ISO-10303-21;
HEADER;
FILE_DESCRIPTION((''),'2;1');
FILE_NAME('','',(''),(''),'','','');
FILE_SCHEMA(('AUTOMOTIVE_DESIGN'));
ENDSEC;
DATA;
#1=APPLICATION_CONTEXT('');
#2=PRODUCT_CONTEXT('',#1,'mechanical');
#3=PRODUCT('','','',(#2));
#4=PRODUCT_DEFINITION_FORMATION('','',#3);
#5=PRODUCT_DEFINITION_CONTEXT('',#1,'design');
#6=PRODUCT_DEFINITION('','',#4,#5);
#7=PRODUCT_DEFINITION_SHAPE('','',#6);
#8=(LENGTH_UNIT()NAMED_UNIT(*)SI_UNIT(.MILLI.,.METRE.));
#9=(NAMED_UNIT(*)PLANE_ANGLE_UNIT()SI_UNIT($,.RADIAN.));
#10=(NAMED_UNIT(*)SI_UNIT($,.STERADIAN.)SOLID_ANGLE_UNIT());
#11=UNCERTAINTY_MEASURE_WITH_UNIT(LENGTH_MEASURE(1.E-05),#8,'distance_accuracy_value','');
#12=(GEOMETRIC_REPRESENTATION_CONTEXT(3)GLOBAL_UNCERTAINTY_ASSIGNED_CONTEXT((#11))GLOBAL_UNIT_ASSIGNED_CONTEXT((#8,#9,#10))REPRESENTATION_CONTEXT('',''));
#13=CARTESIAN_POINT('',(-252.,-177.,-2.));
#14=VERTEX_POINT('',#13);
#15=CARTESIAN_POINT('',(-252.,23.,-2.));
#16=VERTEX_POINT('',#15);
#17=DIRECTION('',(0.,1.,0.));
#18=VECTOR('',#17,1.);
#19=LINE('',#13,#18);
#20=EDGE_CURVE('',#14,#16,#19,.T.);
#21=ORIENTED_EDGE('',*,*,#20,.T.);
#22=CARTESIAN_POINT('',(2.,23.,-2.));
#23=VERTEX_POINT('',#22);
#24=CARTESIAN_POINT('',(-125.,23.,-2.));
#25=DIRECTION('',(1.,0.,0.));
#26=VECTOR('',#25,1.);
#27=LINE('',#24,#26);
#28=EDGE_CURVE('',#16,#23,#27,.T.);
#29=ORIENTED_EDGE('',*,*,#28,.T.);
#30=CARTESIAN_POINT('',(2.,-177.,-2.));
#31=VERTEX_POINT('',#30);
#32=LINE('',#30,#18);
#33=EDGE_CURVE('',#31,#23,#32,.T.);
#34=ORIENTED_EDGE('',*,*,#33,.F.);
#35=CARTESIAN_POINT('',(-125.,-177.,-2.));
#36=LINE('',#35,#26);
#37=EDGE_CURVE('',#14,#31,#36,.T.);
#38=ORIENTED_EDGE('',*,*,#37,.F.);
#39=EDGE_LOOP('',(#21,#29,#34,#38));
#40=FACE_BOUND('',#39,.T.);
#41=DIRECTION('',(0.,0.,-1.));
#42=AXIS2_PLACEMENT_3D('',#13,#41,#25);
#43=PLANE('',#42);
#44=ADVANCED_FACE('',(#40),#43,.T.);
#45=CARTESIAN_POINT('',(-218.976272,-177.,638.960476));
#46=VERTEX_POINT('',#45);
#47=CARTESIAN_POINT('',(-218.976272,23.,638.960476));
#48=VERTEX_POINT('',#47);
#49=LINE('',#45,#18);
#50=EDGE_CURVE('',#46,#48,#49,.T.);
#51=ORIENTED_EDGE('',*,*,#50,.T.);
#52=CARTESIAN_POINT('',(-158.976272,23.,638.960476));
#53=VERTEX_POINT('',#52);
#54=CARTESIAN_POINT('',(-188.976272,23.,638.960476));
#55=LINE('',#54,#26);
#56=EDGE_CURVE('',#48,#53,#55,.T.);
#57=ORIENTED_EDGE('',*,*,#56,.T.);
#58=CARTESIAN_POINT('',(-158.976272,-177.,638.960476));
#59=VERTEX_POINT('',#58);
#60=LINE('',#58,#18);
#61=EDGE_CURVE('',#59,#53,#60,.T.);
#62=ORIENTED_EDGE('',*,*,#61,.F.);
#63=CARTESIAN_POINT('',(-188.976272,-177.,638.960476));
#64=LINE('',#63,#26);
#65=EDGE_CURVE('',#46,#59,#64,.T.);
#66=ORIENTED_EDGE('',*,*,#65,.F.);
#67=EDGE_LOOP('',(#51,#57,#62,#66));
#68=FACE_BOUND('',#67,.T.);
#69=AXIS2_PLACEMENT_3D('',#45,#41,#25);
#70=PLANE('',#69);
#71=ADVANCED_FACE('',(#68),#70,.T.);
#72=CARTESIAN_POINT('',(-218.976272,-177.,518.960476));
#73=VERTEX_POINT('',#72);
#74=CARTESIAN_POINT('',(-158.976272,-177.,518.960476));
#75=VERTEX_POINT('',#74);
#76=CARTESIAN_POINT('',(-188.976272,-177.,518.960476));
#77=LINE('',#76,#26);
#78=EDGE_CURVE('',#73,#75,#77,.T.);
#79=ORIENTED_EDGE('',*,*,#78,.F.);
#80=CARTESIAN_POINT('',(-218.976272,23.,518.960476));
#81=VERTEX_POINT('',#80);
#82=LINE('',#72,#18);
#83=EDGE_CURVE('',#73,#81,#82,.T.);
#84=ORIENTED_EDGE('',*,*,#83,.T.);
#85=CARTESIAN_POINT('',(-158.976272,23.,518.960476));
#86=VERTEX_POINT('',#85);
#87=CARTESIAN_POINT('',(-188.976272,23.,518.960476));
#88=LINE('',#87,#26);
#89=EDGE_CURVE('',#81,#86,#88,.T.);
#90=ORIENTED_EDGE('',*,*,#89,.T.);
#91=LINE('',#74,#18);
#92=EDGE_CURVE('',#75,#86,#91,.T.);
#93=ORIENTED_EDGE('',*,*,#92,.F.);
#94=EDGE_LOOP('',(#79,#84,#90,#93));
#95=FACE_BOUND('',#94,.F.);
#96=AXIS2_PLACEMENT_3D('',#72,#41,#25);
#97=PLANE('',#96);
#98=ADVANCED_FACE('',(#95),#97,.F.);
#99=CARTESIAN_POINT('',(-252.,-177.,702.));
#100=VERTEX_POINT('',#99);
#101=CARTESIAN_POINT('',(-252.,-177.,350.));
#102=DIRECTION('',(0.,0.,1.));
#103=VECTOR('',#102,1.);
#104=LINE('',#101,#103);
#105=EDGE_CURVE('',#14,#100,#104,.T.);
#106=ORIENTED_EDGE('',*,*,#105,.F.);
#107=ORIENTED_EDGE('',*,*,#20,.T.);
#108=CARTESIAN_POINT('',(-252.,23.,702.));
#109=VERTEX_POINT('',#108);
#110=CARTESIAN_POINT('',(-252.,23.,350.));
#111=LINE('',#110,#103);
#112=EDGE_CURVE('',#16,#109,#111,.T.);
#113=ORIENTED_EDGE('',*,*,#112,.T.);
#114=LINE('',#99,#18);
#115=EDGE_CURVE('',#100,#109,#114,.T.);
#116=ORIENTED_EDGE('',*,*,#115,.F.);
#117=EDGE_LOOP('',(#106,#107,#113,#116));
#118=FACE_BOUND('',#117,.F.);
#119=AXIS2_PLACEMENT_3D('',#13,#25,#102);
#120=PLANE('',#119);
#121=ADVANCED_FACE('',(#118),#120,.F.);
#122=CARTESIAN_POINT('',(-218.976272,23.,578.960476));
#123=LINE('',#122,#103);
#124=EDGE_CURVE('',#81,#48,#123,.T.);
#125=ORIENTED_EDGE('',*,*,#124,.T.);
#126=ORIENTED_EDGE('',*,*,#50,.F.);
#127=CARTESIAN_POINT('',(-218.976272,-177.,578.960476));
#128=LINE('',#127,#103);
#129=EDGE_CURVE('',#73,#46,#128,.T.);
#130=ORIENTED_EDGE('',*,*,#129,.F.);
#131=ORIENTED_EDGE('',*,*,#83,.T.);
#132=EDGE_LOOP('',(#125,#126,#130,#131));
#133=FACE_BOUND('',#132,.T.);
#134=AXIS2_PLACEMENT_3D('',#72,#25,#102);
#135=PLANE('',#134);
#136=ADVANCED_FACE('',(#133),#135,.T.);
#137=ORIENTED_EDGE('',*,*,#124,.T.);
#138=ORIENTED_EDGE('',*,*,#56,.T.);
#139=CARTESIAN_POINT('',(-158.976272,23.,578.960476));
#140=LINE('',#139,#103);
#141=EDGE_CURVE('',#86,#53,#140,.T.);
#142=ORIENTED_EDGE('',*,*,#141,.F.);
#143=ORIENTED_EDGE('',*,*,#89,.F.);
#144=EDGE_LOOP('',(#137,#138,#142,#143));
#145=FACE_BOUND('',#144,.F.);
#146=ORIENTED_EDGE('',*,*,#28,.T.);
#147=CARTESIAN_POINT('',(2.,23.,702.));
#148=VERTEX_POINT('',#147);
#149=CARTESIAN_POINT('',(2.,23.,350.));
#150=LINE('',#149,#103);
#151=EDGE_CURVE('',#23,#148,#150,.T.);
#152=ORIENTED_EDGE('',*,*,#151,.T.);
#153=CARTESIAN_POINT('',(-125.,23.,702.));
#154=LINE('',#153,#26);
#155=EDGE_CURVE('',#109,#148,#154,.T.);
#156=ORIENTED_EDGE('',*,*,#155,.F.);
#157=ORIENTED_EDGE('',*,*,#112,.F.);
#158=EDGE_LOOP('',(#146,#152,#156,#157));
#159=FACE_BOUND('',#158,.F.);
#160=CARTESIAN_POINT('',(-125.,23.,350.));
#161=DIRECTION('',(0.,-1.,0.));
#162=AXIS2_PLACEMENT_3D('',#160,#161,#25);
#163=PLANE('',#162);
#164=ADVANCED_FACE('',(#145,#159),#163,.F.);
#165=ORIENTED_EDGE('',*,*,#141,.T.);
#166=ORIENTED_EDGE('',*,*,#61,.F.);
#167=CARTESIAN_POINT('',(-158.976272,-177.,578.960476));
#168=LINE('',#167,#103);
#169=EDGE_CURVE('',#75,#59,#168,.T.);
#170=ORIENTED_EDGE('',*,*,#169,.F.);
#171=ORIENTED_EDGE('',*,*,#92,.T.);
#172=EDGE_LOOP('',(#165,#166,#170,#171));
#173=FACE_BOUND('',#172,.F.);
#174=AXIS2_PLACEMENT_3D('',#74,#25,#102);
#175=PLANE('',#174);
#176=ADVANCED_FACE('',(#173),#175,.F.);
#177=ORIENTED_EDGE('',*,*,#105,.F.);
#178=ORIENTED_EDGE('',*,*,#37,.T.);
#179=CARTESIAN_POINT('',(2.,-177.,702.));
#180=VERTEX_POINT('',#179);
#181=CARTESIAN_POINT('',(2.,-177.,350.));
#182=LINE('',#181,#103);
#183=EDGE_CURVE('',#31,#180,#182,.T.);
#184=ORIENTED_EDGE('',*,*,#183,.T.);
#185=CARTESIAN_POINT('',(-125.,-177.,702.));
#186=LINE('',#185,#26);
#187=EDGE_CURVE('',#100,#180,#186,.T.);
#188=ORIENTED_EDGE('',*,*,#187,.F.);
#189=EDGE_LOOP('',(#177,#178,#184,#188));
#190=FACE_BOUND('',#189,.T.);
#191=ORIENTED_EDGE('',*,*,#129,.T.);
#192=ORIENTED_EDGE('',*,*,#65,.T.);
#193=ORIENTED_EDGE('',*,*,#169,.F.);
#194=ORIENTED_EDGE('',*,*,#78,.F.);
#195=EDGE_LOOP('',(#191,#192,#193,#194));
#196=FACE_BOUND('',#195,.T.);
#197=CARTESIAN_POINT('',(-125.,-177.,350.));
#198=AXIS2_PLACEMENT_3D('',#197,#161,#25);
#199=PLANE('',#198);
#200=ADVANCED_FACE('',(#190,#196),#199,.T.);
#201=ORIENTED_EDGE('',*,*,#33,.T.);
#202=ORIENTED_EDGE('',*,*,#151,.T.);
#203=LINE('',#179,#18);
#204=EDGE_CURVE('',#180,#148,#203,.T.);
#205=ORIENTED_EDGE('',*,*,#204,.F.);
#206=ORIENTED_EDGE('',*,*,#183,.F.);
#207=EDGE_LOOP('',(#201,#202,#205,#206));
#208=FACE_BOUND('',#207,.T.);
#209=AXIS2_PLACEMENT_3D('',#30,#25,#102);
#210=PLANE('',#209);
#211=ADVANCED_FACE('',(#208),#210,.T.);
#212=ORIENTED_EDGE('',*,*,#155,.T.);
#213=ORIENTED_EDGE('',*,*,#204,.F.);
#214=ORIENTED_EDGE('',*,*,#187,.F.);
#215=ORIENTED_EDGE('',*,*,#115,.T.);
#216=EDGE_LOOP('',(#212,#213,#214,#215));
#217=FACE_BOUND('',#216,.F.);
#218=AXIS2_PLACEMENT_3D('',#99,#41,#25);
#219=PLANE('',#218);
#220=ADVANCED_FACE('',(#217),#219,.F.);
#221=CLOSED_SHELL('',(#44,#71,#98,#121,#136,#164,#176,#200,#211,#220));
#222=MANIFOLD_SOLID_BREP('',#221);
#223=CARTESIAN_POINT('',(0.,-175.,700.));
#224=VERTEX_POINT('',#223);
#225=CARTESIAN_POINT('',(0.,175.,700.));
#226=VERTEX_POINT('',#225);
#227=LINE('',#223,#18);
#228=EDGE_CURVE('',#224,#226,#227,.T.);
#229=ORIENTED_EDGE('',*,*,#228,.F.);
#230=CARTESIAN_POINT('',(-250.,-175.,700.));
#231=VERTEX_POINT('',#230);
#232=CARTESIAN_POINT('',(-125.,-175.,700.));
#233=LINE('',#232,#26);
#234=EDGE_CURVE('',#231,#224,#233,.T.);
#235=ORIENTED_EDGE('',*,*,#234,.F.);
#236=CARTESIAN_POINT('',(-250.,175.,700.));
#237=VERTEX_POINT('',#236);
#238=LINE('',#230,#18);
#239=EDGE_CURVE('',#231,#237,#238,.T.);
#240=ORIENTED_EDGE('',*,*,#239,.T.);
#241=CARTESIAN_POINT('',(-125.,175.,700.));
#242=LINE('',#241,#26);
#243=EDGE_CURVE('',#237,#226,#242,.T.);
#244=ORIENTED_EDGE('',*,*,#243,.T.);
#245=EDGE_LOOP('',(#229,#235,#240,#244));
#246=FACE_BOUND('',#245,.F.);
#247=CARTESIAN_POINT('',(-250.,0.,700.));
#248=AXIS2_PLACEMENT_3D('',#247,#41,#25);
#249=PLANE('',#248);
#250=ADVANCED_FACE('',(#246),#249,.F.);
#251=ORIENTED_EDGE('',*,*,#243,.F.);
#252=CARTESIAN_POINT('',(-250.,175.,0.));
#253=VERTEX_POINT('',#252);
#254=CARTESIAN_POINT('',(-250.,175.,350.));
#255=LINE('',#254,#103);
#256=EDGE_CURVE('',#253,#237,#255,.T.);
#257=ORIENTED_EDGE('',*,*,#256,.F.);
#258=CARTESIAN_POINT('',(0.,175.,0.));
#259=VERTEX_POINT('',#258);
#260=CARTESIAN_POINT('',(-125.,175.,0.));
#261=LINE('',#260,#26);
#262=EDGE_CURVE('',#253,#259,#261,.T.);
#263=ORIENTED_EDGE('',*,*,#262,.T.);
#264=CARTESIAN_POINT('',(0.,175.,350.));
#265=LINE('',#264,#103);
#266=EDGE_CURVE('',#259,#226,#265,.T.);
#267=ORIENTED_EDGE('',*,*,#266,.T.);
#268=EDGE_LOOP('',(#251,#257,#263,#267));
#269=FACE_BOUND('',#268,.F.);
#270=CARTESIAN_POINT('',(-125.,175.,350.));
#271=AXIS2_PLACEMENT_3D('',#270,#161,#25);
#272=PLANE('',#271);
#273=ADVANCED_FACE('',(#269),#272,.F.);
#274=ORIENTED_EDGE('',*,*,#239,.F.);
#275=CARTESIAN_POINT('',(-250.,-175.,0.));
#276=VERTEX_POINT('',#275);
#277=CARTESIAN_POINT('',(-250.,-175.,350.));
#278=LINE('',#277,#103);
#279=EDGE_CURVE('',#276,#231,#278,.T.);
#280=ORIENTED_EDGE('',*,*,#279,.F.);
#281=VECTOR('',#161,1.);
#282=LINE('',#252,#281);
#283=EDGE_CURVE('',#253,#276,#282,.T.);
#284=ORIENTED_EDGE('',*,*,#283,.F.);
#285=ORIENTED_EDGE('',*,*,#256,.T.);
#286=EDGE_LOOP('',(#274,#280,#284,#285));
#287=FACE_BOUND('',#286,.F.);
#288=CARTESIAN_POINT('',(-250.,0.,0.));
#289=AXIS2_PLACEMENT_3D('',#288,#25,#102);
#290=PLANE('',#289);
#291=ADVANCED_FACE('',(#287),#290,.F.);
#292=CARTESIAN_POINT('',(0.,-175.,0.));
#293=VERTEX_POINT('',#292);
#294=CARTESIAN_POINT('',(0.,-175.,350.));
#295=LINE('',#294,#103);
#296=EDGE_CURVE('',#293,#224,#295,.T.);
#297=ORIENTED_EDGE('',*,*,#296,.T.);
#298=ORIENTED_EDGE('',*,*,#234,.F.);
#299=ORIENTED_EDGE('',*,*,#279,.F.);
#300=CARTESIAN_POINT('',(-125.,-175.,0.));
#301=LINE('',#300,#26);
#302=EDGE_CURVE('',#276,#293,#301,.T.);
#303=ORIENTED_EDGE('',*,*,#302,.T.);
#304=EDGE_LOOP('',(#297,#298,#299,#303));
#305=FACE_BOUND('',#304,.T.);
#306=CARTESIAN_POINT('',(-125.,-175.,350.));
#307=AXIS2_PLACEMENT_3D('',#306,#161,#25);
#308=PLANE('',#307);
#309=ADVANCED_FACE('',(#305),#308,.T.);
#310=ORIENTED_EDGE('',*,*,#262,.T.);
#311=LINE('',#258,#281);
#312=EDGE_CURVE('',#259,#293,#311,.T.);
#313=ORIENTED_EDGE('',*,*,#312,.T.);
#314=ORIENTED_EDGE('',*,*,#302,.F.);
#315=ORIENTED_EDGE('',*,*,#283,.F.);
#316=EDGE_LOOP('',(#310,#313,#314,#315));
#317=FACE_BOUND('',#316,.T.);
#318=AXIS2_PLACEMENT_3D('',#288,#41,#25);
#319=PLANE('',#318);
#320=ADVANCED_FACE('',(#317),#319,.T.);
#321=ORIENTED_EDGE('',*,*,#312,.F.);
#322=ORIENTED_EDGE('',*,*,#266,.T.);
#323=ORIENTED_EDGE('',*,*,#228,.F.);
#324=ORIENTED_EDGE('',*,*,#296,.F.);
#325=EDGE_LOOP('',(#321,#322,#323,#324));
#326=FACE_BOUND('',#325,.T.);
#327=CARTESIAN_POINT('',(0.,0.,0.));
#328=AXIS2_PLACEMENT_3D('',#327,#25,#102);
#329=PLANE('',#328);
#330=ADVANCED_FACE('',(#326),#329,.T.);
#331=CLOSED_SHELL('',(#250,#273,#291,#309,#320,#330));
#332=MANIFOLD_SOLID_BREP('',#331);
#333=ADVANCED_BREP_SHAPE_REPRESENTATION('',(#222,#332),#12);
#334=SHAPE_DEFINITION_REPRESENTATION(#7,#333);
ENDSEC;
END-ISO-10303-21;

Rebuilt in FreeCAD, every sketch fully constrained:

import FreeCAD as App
import Part
import Sketcher

V = App.Vector
Q = App.Units.Quantity


def add_polygon(sketch, points):
    """Adds a closed chain of lines whose ends are joined by coincident constraints."""
    first, n = sketch.GeometryCount, len(points)
    for a, b in zip(points, points[1:] + points[:1]):
        sketch.addGeometry(Part.LineSegment(App.Vector(*a, 0), App.Vector(*b, 0)), False)
    for i in range(n):
        sketch.addConstraint(Sketcher.Constraint("Coincident", first + i, 2, first + (i + 1) % n, 1))

doc = App.newDocument("Part")
params = doc.addObject("Spreadsheet::Sheet", "Params")
for row, (alias, value) in enumerate([
    ("sketch1_width", "250 mm"),
    ("sketch1_height", "700 mm"),
    ("pad1_length", "350 mm"),
    ("sketch2_width", "254 mm"),
    ("sketch2_width2", "60 mm"),
    ("sketch2_height", "704 mm"),
    ("sketch2_height2", "120 mm"),
    ("pad2_length", "200 mm"),
], start=1):
    params.set(f"A{row}", alias)
    params.set(f"B{row}", "=" + value)
    params.setAlias(f"B{row}", alias)

body = doc.addObject("PartDesign::Body", "Body")

sketch1 = body.newObject("Sketcher::SketchObject", "Sketch")
sketch1.AttachmentSupport = (doc.getObject("XZ_Plane"), [""])
sketch1.MapMode = "FlatFace"
add_polygon(sketch1, [(-250, 700), (-250, 0), (0, 0), (0, 700)])
sketch1.addConstraint([
    Sketcher.Constraint("Vertical", 0),
    Sketcher.Constraint("Horizontal", 1),
    Sketcher.Constraint("Vertical", 2),
    Sketcher.Constraint("Horizontal", 3),
    Sketcher.Constraint("Coincident", 1, 2, -1, 1),
    Sketcher.Constraint("DistanceX", 1, 1, 1, 2, Q("250 mm")),
    Sketcher.Constraint("DistanceY", 0, 2, 0, 1, Q("700 mm")),
])
sketch1.setExpression("Constraints[9]", "Params.sketch1_width")
sketch1.setExpression("Constraints[10]", "Params.sketch1_height")
pad1 = body.newObject("PartDesign::Pad", "Pad")
pad1.Profile = sketch1
pad1.setExpression("Length", "Params.pad1_length")
pad1.Midplane = True
body2 = doc.addObject("PartDesign::Body", "Body001")

sketch2 = body2.newObject("Sketcher::SketchObject", "Sketch001")
sketch2.AttachmentSupport = (doc.getObject("XZ_Plane001"), [""])
sketch2.MapMode = "FlatFace"
sketch2.AttachmentOffset = App.Placement(V(0, 0, 177), App.Rotation())
add_polygon(sketch2, [(-252, 702), (-252, -2), (2, -2), (2, 702)])
add_polygon(sketch2, [(-159, 519), (-219, 519), (-219, 639), (-159, 639)])
sketch2.addConstraint([
    Sketcher.Constraint("Vertical", 0),
    Sketcher.Constraint("Horizontal", 1),
    Sketcher.Constraint("Vertical", 2),
    Sketcher.Constraint("Horizontal", 3),
    Sketcher.Constraint("Horizontal", 4),
    Sketcher.Constraint("Vertical", 5),
    Sketcher.Constraint("Horizontal", 6),
    Sketcher.Constraint("Vertical", 7),
    Sketcher.Constraint("DistanceX", 1, 1, 1, 2, Q("254 mm")),
    Sketcher.Constraint("DistanceX", 4, 2, 4, 1, Q("60 mm")),
    Sketcher.Constraint("DistanceY", 0, 2, 0, 1, Q("704 mm")),
    Sketcher.Constraint("DistanceY", 5, 1, 5, 2, Q("120 mm")),
    Sketcher.Constraint("DistanceX", 0, 2, -1, 1, Q("252 mm")),
    Sketcher.Constraint("DistanceY", 0, 2, -1, 1, Q("2 mm")),
    Sketcher.Constraint("DistanceX", 4, 2, -1, 1, Q("218.976272 mm")),
    Sketcher.Constraint("DistanceY", -1, 1, 4, 2, Q("518.960476 mm")),
])
sketch2.setExpression("Constraints[16]", "Params.sketch2_width")
sketch2.setExpression("Constraints[17]", "Params.sketch2_width2")
sketch2.setExpression("Constraints[18]", "Params.sketch2_height")
sketch2.setExpression("Constraints[19]", "Params.sketch2_height2")
pad2 = body2.newObject("PartDesign::Pad", "Pad001")
pad2.Profile = sketch2
pad2.setExpression("Length", "Params.pad2_length")
pad2.Reversed = True

doc.recompute()
